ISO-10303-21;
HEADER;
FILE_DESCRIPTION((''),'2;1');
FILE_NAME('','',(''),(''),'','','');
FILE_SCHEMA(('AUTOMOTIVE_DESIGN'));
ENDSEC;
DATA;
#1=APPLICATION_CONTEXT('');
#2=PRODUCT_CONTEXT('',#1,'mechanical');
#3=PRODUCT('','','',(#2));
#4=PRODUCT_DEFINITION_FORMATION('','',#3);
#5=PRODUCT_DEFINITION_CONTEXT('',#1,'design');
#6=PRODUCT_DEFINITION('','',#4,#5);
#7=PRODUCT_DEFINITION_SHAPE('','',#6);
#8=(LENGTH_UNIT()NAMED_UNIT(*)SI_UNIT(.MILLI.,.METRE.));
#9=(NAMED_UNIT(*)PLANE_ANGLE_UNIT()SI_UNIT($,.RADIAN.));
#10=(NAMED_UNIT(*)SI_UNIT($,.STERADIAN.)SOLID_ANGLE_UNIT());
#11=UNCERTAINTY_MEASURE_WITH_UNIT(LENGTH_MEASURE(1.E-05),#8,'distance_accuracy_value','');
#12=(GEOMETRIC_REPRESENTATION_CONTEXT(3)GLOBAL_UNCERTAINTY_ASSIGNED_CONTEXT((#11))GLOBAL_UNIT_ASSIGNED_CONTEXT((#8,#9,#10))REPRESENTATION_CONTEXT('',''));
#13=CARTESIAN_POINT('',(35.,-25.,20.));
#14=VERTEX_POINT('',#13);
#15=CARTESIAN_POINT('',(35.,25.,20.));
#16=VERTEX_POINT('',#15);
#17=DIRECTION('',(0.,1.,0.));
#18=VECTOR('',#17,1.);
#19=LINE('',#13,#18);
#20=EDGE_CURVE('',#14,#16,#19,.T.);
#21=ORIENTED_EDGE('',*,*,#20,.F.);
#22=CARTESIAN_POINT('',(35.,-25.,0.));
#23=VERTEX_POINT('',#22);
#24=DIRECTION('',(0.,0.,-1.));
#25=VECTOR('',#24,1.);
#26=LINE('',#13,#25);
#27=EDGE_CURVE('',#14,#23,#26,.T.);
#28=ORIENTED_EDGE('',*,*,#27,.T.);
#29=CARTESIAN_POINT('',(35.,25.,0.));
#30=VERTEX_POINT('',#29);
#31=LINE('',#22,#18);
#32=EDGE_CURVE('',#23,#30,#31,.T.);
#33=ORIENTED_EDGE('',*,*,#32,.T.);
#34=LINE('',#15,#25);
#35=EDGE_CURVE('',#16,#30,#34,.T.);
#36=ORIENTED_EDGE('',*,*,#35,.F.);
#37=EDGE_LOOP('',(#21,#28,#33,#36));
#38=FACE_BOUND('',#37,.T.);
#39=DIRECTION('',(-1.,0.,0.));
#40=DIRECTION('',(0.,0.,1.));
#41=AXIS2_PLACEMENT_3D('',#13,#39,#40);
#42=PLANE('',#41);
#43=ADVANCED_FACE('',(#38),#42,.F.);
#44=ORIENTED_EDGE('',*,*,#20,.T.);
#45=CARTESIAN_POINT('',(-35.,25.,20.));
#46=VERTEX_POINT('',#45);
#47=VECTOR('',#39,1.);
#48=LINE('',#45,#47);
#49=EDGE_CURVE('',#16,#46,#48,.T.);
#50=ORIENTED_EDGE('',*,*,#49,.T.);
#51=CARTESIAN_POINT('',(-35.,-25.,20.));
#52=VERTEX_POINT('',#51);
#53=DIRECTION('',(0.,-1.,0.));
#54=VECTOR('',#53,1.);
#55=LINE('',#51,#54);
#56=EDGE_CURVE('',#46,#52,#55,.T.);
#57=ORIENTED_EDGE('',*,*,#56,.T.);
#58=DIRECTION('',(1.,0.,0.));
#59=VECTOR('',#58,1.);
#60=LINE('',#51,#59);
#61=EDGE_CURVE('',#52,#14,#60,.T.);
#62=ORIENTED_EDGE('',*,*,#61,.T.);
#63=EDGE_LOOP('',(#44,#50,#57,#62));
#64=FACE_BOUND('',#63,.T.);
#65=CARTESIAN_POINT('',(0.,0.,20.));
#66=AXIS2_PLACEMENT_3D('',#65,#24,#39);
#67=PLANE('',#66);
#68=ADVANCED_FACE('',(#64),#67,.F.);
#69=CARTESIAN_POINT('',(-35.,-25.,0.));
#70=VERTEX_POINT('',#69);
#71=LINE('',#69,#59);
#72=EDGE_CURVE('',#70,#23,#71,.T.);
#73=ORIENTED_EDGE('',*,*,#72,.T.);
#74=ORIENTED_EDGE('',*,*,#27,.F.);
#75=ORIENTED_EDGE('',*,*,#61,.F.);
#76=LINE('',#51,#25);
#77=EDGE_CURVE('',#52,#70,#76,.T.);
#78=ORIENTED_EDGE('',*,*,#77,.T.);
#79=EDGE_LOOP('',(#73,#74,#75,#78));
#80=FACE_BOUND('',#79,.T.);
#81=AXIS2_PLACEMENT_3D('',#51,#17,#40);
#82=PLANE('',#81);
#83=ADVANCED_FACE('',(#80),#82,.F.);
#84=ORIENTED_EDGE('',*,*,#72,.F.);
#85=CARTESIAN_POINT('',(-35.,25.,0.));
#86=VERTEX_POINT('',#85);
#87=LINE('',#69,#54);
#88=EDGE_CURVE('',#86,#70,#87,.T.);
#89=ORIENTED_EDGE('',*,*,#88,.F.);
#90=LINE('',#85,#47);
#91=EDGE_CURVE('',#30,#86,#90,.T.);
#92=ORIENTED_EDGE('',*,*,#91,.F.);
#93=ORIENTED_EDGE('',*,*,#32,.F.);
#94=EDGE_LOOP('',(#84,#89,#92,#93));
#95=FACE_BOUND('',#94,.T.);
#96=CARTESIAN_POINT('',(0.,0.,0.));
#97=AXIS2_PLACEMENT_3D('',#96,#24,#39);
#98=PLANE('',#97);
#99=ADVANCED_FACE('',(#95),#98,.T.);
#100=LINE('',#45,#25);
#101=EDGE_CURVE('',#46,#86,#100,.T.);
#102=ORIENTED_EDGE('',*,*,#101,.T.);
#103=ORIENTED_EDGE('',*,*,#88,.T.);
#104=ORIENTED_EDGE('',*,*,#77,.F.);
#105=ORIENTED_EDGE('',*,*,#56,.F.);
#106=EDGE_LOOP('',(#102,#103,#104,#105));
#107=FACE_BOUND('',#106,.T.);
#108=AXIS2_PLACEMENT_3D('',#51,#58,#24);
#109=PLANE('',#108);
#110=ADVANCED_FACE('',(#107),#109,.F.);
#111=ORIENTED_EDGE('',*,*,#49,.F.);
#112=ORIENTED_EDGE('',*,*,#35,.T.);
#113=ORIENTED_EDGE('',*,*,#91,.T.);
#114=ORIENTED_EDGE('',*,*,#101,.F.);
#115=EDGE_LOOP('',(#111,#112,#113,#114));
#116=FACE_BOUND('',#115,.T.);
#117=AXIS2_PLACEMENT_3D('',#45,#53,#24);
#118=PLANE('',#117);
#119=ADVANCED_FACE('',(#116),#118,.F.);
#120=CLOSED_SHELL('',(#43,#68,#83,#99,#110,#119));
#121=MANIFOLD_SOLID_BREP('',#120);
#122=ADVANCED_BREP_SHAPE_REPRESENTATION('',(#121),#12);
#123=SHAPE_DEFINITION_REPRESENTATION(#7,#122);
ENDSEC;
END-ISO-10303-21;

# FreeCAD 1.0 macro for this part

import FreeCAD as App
import Part
import Sketcher
from FreeCAD import Vector
Q = App.Units.Quantity

doc = App.newDocument("Part")
params = doc.addObject("Spreadsheet::Sheet", "Params")
for row, (alias, value) in enumerate([
    ("sketch1_width", "70 mm"),
    ("sketch1_height", "50 mm"),
    ("pad1_length", "20 mm"),
], start=1):
    params.set(f"A{row}", alias)
    params.set(f"B{row}", "=" + value)
    params.setAlias(f"B{row}", alias)

body = doc.addObject("PartDesign::Body", "Body")

# Sketch on XY plane
sketch1 = body.newObject("Sketcher::SketchObject", "Sketch")
sketch1.AttachmentSupport = (doc.getObject("XY_Plane"), [""])
sketch1.MapMode = "FlatFace"
sketch1.addGeometry([
    Part.LineSegment(Vector(-35, 25, 0), Vector(-35, -25, 0)),
    Part.LineSegment(Vector(-35, -25, 0), Vector(35, -25, 0)),
    Part.LineSegment(Vector(35, -25, 0), Vector(35, 25, 0)),
    Part.LineSegment(Vector(35, 25, 0), Vector(-35, 25, 0)),
], False)
sketch1.addConstraint([
    Sketcher.Constraint("Coincident", 0, 2, 1, 1),
    Sketcher.Constraint("Coincident", 1, 2, 2, 1),
    Sketcher.Constraint("Coincident", 2, 2, 3, 1),
    Sketcher.Constraint("Coincident", 3, 2, 0, 1),
    Sketcher.Constraint("Vertical", 0),
    Sketcher.Constraint("Horizontal", 1),
    Sketcher.Constraint("Vertical", 2),
    Sketcher.Constraint("Horizontal", 3),
    Sketcher.Constraint("Symmetric", 0, 2, 2, 2, -1, 1),
    Sketcher.Constraint("DistanceX", 1, 1, 1, 2, Q("70 mm")),
    Sketcher.Constraint("DistanceY", 0, 2, 0, 1, Q("50 mm")),
])
sketch1.setExpression("Constraints[9]", "Params.sketch1_width")
sketch1.setExpression("Constraints[10]", "Params.sketch1_height")
pad1 = body.newObject("PartDesign::Pad", "Pad")
pad1.Profile = sketch1
pad1.setExpression("Length", "Params.pad1_length")

doc.recompute()
